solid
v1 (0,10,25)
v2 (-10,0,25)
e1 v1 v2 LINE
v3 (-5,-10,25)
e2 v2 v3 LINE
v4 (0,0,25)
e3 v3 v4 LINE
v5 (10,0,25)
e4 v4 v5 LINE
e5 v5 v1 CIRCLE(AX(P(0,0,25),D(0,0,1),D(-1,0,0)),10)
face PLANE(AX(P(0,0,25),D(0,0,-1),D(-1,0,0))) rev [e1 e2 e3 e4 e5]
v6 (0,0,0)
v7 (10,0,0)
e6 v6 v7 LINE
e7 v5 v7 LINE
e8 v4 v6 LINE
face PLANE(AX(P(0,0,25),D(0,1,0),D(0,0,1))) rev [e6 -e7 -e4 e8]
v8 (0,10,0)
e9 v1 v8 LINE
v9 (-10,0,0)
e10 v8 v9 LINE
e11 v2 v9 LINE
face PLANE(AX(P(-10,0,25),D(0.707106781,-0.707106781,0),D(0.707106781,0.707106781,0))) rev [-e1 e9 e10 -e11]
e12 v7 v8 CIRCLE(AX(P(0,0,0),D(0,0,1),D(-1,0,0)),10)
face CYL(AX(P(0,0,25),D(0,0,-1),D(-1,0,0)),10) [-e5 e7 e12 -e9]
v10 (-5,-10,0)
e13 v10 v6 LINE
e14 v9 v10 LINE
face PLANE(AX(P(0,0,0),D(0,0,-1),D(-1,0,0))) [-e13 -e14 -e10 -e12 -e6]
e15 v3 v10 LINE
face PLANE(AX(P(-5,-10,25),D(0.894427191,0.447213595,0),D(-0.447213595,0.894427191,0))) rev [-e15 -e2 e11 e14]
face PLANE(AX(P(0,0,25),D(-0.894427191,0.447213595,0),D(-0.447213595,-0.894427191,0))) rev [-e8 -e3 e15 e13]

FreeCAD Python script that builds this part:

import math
import FreeCAD as App
import Part
import Sketcher
from FreeCAD import Vector
Q = App.Units.Quantity

doc = App.newDocument("Part")
body = doc.addObject("PartDesign::Body", "Body")

# Sketch on XY plane
sketch1 = body.newObject("Sketcher::SketchObject", "Sketch")
sketch1.AttachmentSupport = (doc.getObject("XY_Plane"), [""])
sketch1.MapMode = "FlatFace"
sketch1.addGeometry(Part.LineSegment(Vector(0, 10, 0), Vector(-10, 0, 0)), False)
sketch1.addGeometry(Part.LineSegment(Vector(-10, 0, 0), Vector(-5, -10, 0)), False)
sketch1.addGeometry(Part.LineSegment(Vector(-5, -10, 0), Vector(0, 0, 0)), False)
sketch1.addGeometry(Part.LineSegment(Vector(0, 0, 0), Vector(10, 0, 0)), False)
sketch1.addGeometry(Part.ArcOfCircle(Part.Circle(Vector(0, 0, 0), Vector(0, 0, 1), 10), math.radians(0), math.radians(90)), False)
sketch1.addConstraint(Sketcher.Constraint("Coincident", 0, 2, 1, 1))
sketch1.addConstraint(Sketcher.Constraint("Coincident", 1, 2, 2, 1))
sketch1.addConstraint(Sketcher.Constraint("Coincident", 2, 2, 3, 1))
sketch1.addConstraint(Sketcher.Constraint("Coincident", 3, 2, 4, 1))
sketch1.addConstraint(Sketcher.Constraint("Coincident", 4, 2, 0, 1))
sketch1.addConstraint(Sketcher.Constraint("Horizontal", 3))
sketch1.addConstraint(Sketcher.Constraint("Coincident", 4, 3, -1, 1))
sketch1.addConstraint(Sketcher.Constraint("Coincident", 2, 2, -1, 1))
sketch1.addConstraint(Sketcher.Constraint("Symmetric", 0, 2, 3, 2, -1, 1))
sketch1.addConstraint(Sketcher.Constraint("PointOnObject", 4, 2, -2))
sketch1.addConstraint(Sketcher.Constraint("Equal", 1, 2))
sketch1.addConstraint(Sketcher.Constraint("Radius", 4, Q("10 mm")))
sketch1.addConstraint(Sketcher.Constraint("DistanceY", 1, 2, -1, 1, Q("10 mm")))
pad1 = body.newObject("PartDesign::Pad", "Pad")
pad1.Profile = sketch1
pad1.Length = 25

doc.recompute()
